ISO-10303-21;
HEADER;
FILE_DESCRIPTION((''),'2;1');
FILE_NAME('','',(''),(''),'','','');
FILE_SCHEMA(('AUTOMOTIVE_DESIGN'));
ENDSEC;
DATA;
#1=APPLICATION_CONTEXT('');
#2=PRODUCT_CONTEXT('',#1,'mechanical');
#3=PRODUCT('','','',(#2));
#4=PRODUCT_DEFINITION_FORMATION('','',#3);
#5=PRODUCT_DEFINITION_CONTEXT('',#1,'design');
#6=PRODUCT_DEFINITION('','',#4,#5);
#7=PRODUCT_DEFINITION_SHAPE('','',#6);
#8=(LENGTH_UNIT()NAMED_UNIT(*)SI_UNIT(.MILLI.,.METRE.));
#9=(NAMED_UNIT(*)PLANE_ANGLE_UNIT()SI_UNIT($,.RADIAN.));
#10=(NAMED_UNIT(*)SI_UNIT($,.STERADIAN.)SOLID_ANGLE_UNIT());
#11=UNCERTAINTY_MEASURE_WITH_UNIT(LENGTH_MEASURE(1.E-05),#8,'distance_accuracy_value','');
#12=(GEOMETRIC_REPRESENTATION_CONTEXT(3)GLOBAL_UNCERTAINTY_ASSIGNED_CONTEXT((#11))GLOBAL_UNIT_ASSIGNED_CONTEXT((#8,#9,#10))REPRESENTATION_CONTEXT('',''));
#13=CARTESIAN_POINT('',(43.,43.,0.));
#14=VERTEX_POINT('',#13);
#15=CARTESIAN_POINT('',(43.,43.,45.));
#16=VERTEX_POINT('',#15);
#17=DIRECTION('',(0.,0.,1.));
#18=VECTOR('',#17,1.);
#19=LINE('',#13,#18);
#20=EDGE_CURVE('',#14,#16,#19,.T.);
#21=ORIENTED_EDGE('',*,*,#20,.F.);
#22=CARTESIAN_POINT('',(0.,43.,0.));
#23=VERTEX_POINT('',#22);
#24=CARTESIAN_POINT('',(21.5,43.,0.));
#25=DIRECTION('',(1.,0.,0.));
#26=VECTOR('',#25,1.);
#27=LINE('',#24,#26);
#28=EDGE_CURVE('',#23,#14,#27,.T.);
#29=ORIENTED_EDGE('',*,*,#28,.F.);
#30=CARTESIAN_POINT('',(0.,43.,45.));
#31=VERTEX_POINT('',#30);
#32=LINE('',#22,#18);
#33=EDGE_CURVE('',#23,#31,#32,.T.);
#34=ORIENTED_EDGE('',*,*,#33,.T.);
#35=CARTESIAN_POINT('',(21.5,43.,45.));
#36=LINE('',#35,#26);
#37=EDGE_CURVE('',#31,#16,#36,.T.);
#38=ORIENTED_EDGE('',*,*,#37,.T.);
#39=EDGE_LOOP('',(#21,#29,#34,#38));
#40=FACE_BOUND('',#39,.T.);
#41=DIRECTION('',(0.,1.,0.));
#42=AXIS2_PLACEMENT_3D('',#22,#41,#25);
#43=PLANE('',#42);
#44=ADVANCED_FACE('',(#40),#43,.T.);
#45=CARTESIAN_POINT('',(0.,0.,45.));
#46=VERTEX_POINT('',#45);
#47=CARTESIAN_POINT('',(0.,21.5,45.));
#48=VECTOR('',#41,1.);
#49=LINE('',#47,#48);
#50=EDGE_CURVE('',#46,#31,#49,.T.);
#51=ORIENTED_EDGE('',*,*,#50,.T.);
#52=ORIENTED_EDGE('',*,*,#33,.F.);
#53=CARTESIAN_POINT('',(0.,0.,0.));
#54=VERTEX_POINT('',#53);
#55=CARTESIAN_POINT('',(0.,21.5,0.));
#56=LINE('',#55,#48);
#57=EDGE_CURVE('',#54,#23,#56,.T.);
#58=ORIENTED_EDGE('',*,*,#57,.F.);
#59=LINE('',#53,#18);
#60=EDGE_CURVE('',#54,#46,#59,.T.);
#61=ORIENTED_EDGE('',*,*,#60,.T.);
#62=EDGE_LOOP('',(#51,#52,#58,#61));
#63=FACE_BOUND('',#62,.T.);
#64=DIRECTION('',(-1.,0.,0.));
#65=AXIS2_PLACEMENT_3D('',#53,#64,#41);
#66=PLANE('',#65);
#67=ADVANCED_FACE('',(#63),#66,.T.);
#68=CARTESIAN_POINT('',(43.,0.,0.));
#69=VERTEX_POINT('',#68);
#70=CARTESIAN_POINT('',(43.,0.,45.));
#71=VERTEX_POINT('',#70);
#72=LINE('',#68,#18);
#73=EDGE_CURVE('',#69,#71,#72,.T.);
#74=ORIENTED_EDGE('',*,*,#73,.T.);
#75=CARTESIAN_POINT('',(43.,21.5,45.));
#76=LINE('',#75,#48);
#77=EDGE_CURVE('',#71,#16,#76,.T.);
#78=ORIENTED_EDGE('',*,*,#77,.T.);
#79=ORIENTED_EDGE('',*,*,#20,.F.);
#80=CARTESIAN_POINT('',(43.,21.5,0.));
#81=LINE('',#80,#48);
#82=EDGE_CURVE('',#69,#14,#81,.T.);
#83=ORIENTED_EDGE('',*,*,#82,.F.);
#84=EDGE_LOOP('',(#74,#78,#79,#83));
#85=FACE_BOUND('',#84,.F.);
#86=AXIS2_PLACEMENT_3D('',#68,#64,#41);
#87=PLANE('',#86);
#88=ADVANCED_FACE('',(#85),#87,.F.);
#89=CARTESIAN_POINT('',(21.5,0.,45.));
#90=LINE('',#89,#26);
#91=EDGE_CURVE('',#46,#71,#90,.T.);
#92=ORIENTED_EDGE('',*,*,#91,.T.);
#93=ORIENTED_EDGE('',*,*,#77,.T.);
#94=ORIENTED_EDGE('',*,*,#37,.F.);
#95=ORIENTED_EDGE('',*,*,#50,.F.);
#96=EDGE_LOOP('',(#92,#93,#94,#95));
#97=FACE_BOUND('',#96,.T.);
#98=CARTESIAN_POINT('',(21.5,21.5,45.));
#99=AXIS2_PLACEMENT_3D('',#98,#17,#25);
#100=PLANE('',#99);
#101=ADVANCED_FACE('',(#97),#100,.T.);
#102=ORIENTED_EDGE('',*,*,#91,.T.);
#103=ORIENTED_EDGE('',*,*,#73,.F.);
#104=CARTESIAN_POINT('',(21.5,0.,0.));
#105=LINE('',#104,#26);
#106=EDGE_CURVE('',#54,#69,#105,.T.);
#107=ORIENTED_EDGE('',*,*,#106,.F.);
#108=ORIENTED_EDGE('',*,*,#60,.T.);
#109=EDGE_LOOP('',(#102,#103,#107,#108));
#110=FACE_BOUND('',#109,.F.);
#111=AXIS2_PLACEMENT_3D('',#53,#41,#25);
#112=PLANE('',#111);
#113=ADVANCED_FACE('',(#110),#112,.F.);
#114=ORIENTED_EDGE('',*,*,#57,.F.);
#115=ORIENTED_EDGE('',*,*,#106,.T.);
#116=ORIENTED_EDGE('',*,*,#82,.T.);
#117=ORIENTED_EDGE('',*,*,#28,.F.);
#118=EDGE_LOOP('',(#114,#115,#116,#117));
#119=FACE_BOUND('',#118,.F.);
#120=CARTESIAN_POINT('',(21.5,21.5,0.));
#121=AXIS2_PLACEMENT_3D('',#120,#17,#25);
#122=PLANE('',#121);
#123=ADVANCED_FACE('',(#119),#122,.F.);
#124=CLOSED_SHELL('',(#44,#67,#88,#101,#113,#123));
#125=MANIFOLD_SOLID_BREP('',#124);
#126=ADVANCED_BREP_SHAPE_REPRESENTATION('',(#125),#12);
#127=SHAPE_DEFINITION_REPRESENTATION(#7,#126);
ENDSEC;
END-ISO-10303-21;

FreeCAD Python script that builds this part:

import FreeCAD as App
import Part
import Sketcher


def add_polygon(sketch, points):
    """Adds a closed chain of lines whose ends are joined by coincident constraints."""
    first, n = sketch.GeometryCount, len(points)
    for a, b in zip(points, points[1:] + points[:1]):
        sketch.addGeometry(Part.LineSegment(App.Vector(*a, 0), App.Vector(*b, 0)), False)
    for i in range(n):
        sketch.addConstraint(Sketcher.Constraint("Coincident", first + i, 2, first + (i + 1) % n, 1))

doc = App.newDocument("Part")
params = doc.addObject("Spreadsheet::Sheet", "Params")
for row, (alias, value) in enumerate([
    ("sketch1_width", "43 mm"),
    ("pad1_length", "45 mm"),
], start=1):
    params.set(f"A{row}", alias)
    params.set(f"B{row}", "=" + value)
    params.setAlias(f"B{row}", alias)

body = doc.addObject("PartDesign::Body", "Body")

sketch1 = body.newObject("Sketcher::SketchObject", "Sketch")
sketch1.AttachmentSupport = (doc.getObject("XY_Plane"), [""])
sketch1.MapMode = "FlatFace"
add_polygon(sketch1, [(0, 43), (0, 0), (43, 0), (43, 43)])
sketch1.addConstraint(Sketcher.Constraint("Vertical", 0))
sketch1.addConstraint(Sketcher.Constraint("Horizontal", 1))
sketch1.addConstraint(Sketcher.Constraint("Vertical", 2))
sketch1.addConstraint(Sketcher.Constraint("Horizontal", 3))
sketch1.addConstraint(Sketcher.Constraint("Coincident", 0, 2, -1, 1))
sketch1.addConstraint(Sketcher.Constraint("Equal", 3, 0))
sketch1.addConstraint(Sketcher.Constraint("DistanceX", 1, 1, 1, 2, 43.0))
sketch1.setExpression("Constraints[10]", "Params.sketch1_width")
pad1 = body.newObject("PartDesign::Pad", "Pad")
pad1.Profile = sketch1
pad1.setExpression("Length", "Params.pad1_length")

doc.recompute()
